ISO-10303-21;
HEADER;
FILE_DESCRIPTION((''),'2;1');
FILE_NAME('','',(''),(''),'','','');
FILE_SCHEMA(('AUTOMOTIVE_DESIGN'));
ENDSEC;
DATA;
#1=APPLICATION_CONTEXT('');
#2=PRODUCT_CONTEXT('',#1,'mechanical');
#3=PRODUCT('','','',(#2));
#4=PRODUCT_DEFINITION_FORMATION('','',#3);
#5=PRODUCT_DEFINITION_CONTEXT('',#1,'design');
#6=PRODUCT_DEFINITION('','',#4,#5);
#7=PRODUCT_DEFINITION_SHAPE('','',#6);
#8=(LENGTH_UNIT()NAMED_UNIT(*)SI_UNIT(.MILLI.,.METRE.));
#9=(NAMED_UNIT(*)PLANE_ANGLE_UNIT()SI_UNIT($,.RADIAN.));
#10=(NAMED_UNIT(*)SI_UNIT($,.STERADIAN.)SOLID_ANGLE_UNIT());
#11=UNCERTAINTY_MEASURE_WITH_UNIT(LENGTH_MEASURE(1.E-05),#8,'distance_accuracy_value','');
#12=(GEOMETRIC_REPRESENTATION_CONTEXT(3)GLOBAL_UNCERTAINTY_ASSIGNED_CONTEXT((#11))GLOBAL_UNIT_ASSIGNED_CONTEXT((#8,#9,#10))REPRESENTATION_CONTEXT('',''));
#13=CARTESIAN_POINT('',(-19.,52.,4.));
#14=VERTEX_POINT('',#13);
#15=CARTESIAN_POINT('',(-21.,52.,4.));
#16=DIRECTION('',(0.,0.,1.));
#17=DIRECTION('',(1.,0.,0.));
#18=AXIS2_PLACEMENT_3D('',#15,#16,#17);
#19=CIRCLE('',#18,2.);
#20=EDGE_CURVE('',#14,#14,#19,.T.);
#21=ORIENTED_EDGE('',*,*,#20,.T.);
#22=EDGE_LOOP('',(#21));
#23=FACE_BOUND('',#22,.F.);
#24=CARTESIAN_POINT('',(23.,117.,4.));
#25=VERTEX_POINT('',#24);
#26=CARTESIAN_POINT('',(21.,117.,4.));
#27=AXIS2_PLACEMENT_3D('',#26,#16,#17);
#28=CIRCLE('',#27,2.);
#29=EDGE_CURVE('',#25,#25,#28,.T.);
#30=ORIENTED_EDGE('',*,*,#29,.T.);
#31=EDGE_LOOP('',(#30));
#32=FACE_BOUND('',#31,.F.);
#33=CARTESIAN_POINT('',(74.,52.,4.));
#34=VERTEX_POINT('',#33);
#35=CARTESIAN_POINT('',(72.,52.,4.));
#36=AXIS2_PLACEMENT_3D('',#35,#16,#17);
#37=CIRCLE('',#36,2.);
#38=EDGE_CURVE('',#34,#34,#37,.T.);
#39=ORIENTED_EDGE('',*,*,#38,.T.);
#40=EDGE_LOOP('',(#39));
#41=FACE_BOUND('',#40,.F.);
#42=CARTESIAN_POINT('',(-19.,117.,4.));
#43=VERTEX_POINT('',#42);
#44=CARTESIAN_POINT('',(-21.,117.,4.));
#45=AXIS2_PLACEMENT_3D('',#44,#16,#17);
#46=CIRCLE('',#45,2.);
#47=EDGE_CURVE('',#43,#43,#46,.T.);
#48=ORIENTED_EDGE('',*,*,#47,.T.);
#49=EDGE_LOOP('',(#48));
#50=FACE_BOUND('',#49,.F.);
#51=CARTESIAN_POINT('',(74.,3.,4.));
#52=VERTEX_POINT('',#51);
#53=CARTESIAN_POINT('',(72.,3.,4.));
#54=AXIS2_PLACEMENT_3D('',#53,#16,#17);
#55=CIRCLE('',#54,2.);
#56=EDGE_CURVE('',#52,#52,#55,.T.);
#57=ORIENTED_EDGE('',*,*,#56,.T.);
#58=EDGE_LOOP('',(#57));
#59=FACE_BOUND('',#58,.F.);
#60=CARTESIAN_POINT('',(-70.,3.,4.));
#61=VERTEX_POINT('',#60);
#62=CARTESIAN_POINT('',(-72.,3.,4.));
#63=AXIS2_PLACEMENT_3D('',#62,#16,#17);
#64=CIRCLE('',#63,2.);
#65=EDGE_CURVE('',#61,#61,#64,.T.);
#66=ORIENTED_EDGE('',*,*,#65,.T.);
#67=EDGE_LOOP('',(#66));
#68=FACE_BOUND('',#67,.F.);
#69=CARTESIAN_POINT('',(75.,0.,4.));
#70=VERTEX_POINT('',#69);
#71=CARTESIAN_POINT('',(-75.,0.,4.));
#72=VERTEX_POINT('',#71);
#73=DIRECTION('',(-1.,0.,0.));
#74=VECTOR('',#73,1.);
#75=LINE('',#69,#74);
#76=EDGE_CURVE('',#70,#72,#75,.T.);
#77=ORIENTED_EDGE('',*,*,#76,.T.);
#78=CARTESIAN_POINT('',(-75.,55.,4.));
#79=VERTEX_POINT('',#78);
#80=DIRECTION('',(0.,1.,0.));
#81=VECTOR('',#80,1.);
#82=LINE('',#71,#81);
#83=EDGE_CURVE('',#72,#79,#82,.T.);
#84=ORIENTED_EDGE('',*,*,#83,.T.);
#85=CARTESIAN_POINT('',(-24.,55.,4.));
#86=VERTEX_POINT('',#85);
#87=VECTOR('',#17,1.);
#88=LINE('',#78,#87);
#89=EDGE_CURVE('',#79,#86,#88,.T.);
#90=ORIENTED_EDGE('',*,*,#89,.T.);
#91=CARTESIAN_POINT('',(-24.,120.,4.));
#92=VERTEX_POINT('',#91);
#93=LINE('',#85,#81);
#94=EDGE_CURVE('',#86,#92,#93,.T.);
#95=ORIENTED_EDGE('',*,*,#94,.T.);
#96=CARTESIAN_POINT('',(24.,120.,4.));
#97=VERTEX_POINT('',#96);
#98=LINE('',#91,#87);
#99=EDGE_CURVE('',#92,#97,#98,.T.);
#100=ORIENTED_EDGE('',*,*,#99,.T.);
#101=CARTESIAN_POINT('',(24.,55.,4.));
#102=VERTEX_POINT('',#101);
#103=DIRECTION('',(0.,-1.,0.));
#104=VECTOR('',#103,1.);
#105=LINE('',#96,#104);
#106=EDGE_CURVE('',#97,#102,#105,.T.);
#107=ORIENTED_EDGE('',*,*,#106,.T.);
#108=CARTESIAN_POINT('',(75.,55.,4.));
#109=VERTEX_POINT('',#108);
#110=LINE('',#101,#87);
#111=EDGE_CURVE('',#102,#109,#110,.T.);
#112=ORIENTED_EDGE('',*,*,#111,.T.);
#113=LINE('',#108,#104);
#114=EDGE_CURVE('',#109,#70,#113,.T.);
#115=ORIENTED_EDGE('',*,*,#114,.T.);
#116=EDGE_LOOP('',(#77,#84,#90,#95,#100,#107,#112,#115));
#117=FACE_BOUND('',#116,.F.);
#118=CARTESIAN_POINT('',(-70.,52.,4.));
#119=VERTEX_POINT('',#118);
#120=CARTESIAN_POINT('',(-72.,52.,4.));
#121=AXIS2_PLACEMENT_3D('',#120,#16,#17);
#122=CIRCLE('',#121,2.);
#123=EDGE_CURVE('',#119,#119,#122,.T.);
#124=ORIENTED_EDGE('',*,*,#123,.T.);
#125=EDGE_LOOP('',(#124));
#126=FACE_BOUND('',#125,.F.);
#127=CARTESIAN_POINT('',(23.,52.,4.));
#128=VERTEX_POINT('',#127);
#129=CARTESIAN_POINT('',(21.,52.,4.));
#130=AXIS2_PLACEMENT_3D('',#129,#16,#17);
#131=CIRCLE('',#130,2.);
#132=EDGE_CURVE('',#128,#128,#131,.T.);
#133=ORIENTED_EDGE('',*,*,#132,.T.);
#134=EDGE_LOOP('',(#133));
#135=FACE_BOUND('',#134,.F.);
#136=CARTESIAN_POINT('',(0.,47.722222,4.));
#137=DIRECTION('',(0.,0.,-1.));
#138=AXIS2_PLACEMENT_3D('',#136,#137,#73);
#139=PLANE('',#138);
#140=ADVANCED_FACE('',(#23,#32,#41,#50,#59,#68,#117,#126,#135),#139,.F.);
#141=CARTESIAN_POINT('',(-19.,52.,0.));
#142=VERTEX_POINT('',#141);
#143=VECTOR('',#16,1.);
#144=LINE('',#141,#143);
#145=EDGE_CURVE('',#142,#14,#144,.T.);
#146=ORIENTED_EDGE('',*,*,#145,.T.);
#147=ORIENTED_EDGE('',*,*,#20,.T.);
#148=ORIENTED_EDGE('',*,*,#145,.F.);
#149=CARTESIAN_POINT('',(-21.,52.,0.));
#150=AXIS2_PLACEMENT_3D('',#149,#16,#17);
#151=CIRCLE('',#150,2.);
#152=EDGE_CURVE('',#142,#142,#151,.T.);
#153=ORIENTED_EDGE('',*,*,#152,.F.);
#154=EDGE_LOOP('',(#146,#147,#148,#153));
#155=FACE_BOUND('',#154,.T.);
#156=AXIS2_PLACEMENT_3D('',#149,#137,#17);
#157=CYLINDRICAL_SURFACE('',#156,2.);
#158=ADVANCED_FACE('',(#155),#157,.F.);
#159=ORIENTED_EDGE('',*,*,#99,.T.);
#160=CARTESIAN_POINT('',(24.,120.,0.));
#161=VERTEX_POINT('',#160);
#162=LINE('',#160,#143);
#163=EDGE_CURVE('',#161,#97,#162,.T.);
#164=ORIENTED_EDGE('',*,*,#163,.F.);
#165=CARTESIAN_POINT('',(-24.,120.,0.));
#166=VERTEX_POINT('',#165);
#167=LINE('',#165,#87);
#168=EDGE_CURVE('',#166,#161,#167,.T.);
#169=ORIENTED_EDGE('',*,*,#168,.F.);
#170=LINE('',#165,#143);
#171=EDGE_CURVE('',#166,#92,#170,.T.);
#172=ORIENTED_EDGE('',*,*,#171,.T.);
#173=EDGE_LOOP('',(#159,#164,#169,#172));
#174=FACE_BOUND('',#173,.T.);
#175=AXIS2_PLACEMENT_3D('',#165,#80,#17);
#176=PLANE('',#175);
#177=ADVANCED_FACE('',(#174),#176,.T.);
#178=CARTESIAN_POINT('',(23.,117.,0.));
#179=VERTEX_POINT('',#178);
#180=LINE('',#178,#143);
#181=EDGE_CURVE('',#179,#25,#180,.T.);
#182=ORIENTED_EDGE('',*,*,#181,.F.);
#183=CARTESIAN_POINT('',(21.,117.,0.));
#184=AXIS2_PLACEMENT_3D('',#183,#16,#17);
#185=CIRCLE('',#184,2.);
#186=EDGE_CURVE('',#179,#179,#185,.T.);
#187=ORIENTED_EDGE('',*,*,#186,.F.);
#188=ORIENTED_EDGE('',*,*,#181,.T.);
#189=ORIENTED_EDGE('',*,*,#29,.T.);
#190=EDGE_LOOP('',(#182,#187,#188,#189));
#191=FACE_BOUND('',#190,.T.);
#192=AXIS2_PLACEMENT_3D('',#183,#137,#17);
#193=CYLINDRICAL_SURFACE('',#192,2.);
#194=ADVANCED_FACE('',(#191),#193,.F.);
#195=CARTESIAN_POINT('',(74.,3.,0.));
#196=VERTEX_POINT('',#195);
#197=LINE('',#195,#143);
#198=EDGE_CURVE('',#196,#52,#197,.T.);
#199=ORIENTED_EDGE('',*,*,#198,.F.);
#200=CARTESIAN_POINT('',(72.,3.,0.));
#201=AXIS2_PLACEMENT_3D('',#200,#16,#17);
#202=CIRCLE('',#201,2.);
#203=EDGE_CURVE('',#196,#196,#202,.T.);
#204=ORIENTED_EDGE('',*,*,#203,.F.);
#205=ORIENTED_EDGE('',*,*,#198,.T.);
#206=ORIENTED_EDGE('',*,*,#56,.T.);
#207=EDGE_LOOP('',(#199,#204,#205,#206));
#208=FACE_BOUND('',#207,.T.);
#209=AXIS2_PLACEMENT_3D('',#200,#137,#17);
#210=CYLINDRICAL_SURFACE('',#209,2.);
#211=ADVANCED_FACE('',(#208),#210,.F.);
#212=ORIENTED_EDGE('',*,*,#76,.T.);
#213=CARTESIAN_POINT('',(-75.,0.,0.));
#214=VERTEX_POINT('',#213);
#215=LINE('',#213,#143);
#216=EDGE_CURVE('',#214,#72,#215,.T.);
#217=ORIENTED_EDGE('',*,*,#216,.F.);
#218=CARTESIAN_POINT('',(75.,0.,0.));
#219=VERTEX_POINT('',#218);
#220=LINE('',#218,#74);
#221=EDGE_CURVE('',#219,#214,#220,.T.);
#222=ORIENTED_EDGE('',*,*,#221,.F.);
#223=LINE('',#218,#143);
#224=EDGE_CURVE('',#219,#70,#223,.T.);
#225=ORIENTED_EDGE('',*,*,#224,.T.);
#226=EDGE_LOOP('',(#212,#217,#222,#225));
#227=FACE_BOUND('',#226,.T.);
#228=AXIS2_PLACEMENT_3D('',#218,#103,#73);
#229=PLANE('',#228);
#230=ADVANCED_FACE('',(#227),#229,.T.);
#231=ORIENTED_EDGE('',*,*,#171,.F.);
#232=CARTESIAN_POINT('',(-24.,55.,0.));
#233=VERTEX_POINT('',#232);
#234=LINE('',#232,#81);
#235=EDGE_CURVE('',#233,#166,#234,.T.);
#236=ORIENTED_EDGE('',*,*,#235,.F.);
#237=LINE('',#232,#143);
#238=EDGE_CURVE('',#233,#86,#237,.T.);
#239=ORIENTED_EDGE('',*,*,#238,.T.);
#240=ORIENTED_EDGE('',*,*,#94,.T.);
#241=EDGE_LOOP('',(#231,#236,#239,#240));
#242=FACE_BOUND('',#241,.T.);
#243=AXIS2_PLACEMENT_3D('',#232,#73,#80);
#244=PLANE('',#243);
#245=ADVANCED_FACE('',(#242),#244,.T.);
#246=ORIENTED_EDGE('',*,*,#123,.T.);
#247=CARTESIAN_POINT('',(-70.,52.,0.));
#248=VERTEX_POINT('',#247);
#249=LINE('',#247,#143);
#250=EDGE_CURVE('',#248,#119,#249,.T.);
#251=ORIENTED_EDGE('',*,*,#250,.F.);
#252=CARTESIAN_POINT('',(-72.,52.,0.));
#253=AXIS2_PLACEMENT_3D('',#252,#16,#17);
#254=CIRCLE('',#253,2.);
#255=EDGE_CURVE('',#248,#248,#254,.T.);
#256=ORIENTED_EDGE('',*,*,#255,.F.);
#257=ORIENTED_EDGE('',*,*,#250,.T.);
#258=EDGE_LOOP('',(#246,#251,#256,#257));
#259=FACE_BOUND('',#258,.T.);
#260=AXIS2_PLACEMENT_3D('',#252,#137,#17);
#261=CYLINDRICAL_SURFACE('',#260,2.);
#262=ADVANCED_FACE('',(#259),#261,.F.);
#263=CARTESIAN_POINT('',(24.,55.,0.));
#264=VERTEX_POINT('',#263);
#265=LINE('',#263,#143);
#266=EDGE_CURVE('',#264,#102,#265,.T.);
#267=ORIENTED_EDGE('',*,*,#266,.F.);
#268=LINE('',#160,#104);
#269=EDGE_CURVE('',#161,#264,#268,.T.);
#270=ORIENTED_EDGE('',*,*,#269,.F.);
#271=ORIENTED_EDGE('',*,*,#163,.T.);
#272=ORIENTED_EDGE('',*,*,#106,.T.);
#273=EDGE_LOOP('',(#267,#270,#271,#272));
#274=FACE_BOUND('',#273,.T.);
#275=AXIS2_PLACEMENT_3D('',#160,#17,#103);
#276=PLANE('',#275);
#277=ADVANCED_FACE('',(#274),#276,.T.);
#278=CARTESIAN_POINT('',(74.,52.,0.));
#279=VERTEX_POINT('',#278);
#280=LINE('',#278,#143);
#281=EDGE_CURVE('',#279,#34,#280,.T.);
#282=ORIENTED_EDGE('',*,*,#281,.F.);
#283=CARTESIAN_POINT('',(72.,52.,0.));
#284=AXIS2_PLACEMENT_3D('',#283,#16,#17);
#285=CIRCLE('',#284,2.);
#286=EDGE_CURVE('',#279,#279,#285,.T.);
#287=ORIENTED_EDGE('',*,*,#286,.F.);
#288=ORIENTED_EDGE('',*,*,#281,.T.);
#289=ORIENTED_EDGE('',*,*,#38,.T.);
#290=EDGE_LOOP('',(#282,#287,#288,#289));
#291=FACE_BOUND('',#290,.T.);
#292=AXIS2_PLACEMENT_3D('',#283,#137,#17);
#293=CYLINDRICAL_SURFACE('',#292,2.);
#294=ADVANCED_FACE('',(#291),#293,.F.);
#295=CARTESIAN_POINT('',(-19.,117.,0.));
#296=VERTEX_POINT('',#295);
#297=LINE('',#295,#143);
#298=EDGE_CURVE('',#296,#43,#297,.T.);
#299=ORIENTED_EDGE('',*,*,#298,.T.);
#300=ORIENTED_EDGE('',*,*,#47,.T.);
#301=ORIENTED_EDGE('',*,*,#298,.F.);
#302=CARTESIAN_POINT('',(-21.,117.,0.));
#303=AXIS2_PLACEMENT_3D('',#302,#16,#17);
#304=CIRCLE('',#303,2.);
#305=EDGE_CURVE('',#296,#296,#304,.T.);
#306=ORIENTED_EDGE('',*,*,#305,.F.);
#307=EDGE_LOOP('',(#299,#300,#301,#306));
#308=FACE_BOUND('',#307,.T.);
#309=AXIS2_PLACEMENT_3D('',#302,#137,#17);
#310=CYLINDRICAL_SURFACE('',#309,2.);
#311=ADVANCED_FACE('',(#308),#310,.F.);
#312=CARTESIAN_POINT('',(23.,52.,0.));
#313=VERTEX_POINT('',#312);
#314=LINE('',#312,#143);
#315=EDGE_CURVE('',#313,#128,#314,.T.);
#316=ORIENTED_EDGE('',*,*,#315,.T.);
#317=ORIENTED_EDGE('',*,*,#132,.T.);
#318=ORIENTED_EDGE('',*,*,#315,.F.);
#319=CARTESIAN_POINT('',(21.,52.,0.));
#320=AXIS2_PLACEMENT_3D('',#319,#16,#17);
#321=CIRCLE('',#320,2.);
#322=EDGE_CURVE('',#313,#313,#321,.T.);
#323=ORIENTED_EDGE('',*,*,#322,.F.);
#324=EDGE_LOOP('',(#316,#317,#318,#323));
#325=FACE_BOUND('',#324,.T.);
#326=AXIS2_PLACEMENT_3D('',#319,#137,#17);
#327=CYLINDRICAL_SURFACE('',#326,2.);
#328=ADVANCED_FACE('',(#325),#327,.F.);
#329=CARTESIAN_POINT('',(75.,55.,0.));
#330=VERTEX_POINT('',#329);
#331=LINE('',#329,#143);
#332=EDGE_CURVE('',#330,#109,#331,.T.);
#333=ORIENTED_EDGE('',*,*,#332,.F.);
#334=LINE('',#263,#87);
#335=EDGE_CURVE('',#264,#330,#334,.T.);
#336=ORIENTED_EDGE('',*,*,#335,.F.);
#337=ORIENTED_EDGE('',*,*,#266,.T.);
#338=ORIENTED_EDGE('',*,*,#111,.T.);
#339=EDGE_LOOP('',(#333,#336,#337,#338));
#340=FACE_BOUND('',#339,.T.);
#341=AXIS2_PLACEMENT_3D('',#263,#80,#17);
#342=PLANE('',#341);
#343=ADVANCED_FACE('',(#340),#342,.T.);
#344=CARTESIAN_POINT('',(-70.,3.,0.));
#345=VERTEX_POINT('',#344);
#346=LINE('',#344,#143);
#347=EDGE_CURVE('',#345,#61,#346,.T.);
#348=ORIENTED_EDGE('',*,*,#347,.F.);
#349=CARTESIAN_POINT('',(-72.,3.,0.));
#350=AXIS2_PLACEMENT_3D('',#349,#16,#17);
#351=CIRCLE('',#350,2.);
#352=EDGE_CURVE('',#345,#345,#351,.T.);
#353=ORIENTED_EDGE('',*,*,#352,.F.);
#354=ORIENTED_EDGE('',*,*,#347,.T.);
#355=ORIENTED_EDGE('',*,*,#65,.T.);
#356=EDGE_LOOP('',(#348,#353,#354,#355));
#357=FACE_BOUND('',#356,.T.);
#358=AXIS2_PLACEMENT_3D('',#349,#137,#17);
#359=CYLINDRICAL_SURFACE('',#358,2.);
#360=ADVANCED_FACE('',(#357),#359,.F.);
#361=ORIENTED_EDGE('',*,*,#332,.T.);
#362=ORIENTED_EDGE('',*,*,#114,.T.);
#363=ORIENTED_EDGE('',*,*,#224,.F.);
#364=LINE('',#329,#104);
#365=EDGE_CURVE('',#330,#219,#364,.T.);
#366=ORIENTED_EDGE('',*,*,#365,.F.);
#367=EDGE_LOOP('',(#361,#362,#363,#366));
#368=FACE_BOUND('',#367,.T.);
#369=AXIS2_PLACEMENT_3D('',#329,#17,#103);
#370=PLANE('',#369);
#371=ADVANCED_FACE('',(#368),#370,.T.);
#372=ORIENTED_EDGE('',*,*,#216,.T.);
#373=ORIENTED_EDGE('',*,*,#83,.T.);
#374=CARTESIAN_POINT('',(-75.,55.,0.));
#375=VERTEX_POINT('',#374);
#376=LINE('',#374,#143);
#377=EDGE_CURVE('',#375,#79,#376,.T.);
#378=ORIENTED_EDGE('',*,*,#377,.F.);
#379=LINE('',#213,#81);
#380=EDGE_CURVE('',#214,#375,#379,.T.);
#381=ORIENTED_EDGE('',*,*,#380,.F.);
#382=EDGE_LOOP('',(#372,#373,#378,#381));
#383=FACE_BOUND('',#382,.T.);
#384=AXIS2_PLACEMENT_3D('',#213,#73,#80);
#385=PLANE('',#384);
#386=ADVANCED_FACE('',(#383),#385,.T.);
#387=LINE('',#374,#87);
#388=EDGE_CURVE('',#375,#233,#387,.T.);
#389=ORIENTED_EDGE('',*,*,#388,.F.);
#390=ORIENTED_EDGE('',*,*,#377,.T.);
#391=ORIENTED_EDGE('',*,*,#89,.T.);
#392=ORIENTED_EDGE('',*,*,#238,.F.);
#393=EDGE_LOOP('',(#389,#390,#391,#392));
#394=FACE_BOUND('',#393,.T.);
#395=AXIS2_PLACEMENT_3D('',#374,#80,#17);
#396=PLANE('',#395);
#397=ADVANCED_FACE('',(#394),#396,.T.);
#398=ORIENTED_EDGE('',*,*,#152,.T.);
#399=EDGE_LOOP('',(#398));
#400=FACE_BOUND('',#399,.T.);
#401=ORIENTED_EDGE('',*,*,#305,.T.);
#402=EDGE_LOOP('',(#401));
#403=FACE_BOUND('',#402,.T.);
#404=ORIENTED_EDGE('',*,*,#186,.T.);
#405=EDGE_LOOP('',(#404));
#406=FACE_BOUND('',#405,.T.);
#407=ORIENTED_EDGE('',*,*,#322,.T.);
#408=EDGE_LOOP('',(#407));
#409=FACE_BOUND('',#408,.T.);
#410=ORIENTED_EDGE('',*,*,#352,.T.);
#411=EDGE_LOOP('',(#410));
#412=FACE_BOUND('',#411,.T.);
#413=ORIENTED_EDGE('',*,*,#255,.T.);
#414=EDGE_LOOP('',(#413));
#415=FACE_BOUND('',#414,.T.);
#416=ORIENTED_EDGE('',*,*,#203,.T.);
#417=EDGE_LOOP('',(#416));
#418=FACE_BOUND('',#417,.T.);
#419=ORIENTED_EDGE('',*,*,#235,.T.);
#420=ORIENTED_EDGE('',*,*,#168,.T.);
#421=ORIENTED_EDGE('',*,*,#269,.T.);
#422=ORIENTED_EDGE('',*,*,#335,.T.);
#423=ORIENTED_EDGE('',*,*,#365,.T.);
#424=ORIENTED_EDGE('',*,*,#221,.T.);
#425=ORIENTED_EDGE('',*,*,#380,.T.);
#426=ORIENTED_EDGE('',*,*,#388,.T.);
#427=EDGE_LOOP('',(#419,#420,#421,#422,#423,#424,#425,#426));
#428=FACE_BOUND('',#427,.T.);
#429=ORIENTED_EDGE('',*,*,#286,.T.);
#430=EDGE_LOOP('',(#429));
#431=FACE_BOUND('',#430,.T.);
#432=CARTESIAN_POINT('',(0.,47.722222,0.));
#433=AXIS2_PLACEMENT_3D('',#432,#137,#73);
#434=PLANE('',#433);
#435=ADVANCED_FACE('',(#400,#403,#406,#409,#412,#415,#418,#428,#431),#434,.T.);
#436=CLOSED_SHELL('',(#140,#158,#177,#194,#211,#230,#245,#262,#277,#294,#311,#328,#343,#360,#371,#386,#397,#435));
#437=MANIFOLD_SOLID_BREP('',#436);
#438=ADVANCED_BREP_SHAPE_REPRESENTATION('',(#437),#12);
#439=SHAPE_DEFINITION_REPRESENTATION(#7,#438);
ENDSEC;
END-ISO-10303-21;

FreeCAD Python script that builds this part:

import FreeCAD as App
import Part
import Sketcher

V = App.Vector
Q = App.Units.Quantity

doc = App.newDocument("Part")
body = doc.addObject("PartDesign::Body", "Body")

# Sketch on XY plane
sketch1 = body.newObject("Sketcher::SketchObject", "Sketch")
sketch1.AttachmentSupport = (doc.getObject("XY_Plane"), [""])
sketch1.MapMode = "FlatFace"
sketch1.addGeometry([
    Part.LineSegment(V(24, 120, 0), V(-24, 120, 0)),  # 0
    Part.LineSegment(V(-24, 120, 0), V(-24, 55, 0)),  # 1
    Part.LineSegment(V(-24, 55, 0), V(-75, 55, 0)),  # 2
    Part.LineSegment(V(-75, 55, 0), V(-75, 0, 0)),  # 3
    Part.LineSegment(V(-75, 0, 0), V(75, 0, 0)),  # 4
    Part.LineSegment(V(75, 0, 0), V(75, 55, 0)),  # 5
    Part.LineSegment(V(75, 55, 0), V(24, 55, 0)),  # 6
    Part.LineSegment(V(24, 55, 0), V(24, 120, 0)),  # 7
    Part.Circle(V(72, 3, 0), V(0, 0, 1), 2),  # 8
    Part.Circle(V(72, 52, 0), V(0, 0, 1), 2),  # 9
    Part.Circle(V(21, 52, 0), V(0, 0, 1), 2),  # 10
    Part.Circle(V(-72, 3, 0), V(0, 0, 1), 2),  # 11
    Part.Circle(V(-21, 52, 0), V(0, 0, 1), 2),  # 12
    Part.Circle(V(-72, 52, 0), V(0, 0, 1), 2),  # 13
    Part.Circle(V(21, 117, 0), V(0, 0, 1), 2),  # 14
    Part.Circle(V(-21, 117, 0), V(0, 0, 1), 2),  # 15
], False)
sketch1.addConstraint([
    Sketcher.Constraint("Coincident", 0, 2, 1, 1),
    Sketcher.Constraint("Coincident", 1, 2, 2, 1),
    Sketcher.Constraint("Coincident", 2, 2, 3, 1),
    Sketcher.Constraint("Coincident", 3, 2, 4, 1),
    Sketcher.Constraint("Coincident", 4, 2, 5, 1),
    Sketcher.Constraint("Coincident", 5, 2, 6, 1),
    Sketcher.Constraint("Coincident", 6, 2, 7, 1),
    Sketcher.Constraint("Coincident", 7, 2, 0, 1),
    Sketcher.Constraint("Horizontal", 0),
    Sketcher.Constraint("Vertical", 1),
    Sketcher.Constraint("Horizontal", 2),
    Sketcher.Constraint("Vertical", 3),
    Sketcher.Constraint("Horizontal", 4),
    Sketcher.Constraint("Vertical", 5),
    Sketcher.Constraint("Horizontal", 6),
    Sketcher.Constraint("Vertical", 7),
    Sketcher.Constraint("Equal", 8, 9),
    Sketcher.Constraint("Equal", 9, 10),
    Sketcher.Constraint("Equal", 10, 11),
    Sketcher.Constraint("Equal", 11, 12),
    Sketcher.Constraint("Equal", 12, 13),
    Sketcher.Constraint("Equal", 13, 14),
    Sketcher.Constraint("Equal", 14, 15),
    Sketcher.Constraint("Symmetric", 3, 2, 4, 2, -1, 1),
    Sketcher.Constraint("Symmetric", 8, 3, 11, 3, -2),
    Sketcher.Constraint("Symmetric", 10, 3, 12, 3, -2),
    Sketcher.Constraint("Symmetric", 9, 3, 13, 3, -2),
    Sketcher.Constraint("Symmetric", 14, 3, 15, 3, -2),
    Sketcher.Constraint("Symmetric", 1, 2, 6, 2, -2),
    Sketcher.Constraint("Horizontal", 9, 3, 10, 3),
    Sketcher.Constraint("Vertical", 8, 3, 9, 3),
    Sketcher.Constraint("Vertical", 10, 3, 14, 3),
    Sketcher.Constraint("Diameter", 8, Q("4 mm")),
    Sketcher.Constraint("DistanceX", 0, 2, 0, 1, Q("48 mm")),
    Sketcher.Constraint("DistanceX", 2, 2, 2, 1, Q("51 mm")),
    Sketcher.Constraint("DistanceY", 1, 2, 1, 1, Q("65 mm")),
    Sketcher.Constraint("DistanceY", 3, 2, 3, 1, Q("55 mm")),
    Sketcher.Constraint("DistanceX", -1, 1, 8, 3, Q("72 mm")),
    Sketcher.Constraint("DistanceY", -1, 1, 8, 3, Q("3 mm")),
    Sketcher.Constraint("DistanceY", -1, 1, 9, 3, Q("52 mm")),
    Sketcher.Constraint("DistanceX", -1, 1, 10, 3, Q("21 mm")),
    Sketcher.Constraint("DistanceY", -1, 1, 14, 3, Q("117 mm")),
])
pad1 = body.newObject("PartDesign::Pad", "Pad")
pad1.Profile = sketch1
pad1.Length = 4

doc.recompute()
